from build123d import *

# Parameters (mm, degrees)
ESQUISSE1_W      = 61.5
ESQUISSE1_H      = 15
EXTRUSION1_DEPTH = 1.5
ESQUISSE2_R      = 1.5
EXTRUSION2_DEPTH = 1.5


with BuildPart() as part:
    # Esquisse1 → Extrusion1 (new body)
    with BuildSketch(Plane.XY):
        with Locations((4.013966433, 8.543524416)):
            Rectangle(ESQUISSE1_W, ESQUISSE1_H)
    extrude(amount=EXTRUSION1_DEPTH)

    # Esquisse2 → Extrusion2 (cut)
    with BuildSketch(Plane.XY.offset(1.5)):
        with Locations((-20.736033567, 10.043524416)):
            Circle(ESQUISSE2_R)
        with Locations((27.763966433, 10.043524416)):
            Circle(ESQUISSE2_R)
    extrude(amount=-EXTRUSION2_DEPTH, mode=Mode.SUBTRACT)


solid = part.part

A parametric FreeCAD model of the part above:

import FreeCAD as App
import Part
import Sketcher


def add_polygon(sketch, points):
    """Adds a closed chain of lines whose ends are joined by coincident constraints."""
    first, n = sketch.GeometryCount, len(points)
    for a, b in zip(points, points[1:] + points[:1]):
        sketch.addGeometry(Part.LineSegment(App.Vector(*a, 0), App.Vector(*b, 0)), False)
    for i in range(n):
        sketch.addConstraint(Sketcher.Constraint("Coincident", first + i, 2, first + (i + 1) % n, 1))

doc = App.newDocument("Part")
params = doc.addObject("Spreadsheet::Sheet", "Params")
for row, (alias, value) in enumerate([
    ("sketch1_height", "15 mm"),
    ("sketch1_width", "61.5 mm"),
    ("pad1_length", "1.5 mm"),
    ("sketch2_diameter", "3 mm"),
    ("pocket1_length", "1.5 mm"),
], start=1):
    params.set(f"A{row}", alias)
    params.set(f"B{row}", "=" + value)
    params.setAlias(f"B{row}", alias)

body = doc.addObject("PartDesign::Body", "Body")

# Sketch on XY plane
sketch1 = doc.addObject("Sketcher::SketchObject", "Sketch")
body.addObject(sketch1)
sketch1.AttachmentSupport = (doc.XY_Plane, [""])
sketch1.MapMode = "FlatFace"
add_polygon(sketch1, [(-27, 16), (-27, 1), (35, 1), (35, 16)])  # lines 0-3
sketch1.addConstraint([
    Sketcher.Constraint("Vertical", 0),
    Sketcher.Constraint("Horizontal", 1),
    Sketcher.Constraint("Vertical", 2),
    Sketcher.Constraint("Horizontal", 3),
    Sketcher.Constraint("DistanceY", 0, 2, 0, 1, 15.0),
    Sketcher.Constraint("DistanceX", 1, 1, 1, 2, 61.5),
    Sketcher.Constraint("DistanceX", 0, 2, -1, 1, 26.736034),
    Sketcher.Constraint("DistanceY", -1, 1, 0, 2, 1.043524),
])
sketch1.setExpression("Constraints[8]", "Params.sketch1_height")
sketch1.setExpression("Constraints[9]", "Params.sketch1_width")
pad1 = doc.addObject("PartDesign::Pad", "Pad")
body.addObject(pad1)
pad1.Profile = sketch1
pad1.setExpression("Length", "Params.pad1_length")

# Sketch on XY plane
sketch2 = doc.addObject("Sketcher::SketchObject", "Sketch001")
body.addObject(sketch2)
sketch2.AttachmentSupport = (doc.XY_Plane, [""])
sketch2.MapMode = "FlatFace"
sketch2.AttachmentOffset = App.Placement(App.Vector(0, 0, 1.5), App.Rotation())
sketch2.addGeometry([
    Part.Circle(App.Vector(-20.7, 10, 0), App.Vector(0, 0, 1), 1.5),
    Part.Circle(App.Vector(27.8, 10, 0), App.Vector(0, 0, 1), 1.5),
], False)
sketch2.addConstraint([
    Sketcher.Constraint("Equal", 0, 1),
    Sketcher.Constraint("Horizontal", 0, 3, 1, 3),
    Sketcher.Constraint("Diameter", 0, 3.0),
    Sketcher.Constraint("DistanceX", 0, 3, 1, 3, 48.5),
    Sketcher.Constraint("DistanceX", 0, 3, -1, 1, 20.736034),
    Sketcher.Constraint("DistanceY", -1, 1, 0, 3, 10.043524),
])
sketch2.setExpression("Constraints[2]", "Params.sketch2_diameter")
pocket1 = doc.addObject("PartDesign::Pocket", "Pocket")
body.addObject(pocket1)
pocket1.Profile = sketch2
pocket1.setExpression("Length", "Params.pocket1_length")

doc.recompute()
